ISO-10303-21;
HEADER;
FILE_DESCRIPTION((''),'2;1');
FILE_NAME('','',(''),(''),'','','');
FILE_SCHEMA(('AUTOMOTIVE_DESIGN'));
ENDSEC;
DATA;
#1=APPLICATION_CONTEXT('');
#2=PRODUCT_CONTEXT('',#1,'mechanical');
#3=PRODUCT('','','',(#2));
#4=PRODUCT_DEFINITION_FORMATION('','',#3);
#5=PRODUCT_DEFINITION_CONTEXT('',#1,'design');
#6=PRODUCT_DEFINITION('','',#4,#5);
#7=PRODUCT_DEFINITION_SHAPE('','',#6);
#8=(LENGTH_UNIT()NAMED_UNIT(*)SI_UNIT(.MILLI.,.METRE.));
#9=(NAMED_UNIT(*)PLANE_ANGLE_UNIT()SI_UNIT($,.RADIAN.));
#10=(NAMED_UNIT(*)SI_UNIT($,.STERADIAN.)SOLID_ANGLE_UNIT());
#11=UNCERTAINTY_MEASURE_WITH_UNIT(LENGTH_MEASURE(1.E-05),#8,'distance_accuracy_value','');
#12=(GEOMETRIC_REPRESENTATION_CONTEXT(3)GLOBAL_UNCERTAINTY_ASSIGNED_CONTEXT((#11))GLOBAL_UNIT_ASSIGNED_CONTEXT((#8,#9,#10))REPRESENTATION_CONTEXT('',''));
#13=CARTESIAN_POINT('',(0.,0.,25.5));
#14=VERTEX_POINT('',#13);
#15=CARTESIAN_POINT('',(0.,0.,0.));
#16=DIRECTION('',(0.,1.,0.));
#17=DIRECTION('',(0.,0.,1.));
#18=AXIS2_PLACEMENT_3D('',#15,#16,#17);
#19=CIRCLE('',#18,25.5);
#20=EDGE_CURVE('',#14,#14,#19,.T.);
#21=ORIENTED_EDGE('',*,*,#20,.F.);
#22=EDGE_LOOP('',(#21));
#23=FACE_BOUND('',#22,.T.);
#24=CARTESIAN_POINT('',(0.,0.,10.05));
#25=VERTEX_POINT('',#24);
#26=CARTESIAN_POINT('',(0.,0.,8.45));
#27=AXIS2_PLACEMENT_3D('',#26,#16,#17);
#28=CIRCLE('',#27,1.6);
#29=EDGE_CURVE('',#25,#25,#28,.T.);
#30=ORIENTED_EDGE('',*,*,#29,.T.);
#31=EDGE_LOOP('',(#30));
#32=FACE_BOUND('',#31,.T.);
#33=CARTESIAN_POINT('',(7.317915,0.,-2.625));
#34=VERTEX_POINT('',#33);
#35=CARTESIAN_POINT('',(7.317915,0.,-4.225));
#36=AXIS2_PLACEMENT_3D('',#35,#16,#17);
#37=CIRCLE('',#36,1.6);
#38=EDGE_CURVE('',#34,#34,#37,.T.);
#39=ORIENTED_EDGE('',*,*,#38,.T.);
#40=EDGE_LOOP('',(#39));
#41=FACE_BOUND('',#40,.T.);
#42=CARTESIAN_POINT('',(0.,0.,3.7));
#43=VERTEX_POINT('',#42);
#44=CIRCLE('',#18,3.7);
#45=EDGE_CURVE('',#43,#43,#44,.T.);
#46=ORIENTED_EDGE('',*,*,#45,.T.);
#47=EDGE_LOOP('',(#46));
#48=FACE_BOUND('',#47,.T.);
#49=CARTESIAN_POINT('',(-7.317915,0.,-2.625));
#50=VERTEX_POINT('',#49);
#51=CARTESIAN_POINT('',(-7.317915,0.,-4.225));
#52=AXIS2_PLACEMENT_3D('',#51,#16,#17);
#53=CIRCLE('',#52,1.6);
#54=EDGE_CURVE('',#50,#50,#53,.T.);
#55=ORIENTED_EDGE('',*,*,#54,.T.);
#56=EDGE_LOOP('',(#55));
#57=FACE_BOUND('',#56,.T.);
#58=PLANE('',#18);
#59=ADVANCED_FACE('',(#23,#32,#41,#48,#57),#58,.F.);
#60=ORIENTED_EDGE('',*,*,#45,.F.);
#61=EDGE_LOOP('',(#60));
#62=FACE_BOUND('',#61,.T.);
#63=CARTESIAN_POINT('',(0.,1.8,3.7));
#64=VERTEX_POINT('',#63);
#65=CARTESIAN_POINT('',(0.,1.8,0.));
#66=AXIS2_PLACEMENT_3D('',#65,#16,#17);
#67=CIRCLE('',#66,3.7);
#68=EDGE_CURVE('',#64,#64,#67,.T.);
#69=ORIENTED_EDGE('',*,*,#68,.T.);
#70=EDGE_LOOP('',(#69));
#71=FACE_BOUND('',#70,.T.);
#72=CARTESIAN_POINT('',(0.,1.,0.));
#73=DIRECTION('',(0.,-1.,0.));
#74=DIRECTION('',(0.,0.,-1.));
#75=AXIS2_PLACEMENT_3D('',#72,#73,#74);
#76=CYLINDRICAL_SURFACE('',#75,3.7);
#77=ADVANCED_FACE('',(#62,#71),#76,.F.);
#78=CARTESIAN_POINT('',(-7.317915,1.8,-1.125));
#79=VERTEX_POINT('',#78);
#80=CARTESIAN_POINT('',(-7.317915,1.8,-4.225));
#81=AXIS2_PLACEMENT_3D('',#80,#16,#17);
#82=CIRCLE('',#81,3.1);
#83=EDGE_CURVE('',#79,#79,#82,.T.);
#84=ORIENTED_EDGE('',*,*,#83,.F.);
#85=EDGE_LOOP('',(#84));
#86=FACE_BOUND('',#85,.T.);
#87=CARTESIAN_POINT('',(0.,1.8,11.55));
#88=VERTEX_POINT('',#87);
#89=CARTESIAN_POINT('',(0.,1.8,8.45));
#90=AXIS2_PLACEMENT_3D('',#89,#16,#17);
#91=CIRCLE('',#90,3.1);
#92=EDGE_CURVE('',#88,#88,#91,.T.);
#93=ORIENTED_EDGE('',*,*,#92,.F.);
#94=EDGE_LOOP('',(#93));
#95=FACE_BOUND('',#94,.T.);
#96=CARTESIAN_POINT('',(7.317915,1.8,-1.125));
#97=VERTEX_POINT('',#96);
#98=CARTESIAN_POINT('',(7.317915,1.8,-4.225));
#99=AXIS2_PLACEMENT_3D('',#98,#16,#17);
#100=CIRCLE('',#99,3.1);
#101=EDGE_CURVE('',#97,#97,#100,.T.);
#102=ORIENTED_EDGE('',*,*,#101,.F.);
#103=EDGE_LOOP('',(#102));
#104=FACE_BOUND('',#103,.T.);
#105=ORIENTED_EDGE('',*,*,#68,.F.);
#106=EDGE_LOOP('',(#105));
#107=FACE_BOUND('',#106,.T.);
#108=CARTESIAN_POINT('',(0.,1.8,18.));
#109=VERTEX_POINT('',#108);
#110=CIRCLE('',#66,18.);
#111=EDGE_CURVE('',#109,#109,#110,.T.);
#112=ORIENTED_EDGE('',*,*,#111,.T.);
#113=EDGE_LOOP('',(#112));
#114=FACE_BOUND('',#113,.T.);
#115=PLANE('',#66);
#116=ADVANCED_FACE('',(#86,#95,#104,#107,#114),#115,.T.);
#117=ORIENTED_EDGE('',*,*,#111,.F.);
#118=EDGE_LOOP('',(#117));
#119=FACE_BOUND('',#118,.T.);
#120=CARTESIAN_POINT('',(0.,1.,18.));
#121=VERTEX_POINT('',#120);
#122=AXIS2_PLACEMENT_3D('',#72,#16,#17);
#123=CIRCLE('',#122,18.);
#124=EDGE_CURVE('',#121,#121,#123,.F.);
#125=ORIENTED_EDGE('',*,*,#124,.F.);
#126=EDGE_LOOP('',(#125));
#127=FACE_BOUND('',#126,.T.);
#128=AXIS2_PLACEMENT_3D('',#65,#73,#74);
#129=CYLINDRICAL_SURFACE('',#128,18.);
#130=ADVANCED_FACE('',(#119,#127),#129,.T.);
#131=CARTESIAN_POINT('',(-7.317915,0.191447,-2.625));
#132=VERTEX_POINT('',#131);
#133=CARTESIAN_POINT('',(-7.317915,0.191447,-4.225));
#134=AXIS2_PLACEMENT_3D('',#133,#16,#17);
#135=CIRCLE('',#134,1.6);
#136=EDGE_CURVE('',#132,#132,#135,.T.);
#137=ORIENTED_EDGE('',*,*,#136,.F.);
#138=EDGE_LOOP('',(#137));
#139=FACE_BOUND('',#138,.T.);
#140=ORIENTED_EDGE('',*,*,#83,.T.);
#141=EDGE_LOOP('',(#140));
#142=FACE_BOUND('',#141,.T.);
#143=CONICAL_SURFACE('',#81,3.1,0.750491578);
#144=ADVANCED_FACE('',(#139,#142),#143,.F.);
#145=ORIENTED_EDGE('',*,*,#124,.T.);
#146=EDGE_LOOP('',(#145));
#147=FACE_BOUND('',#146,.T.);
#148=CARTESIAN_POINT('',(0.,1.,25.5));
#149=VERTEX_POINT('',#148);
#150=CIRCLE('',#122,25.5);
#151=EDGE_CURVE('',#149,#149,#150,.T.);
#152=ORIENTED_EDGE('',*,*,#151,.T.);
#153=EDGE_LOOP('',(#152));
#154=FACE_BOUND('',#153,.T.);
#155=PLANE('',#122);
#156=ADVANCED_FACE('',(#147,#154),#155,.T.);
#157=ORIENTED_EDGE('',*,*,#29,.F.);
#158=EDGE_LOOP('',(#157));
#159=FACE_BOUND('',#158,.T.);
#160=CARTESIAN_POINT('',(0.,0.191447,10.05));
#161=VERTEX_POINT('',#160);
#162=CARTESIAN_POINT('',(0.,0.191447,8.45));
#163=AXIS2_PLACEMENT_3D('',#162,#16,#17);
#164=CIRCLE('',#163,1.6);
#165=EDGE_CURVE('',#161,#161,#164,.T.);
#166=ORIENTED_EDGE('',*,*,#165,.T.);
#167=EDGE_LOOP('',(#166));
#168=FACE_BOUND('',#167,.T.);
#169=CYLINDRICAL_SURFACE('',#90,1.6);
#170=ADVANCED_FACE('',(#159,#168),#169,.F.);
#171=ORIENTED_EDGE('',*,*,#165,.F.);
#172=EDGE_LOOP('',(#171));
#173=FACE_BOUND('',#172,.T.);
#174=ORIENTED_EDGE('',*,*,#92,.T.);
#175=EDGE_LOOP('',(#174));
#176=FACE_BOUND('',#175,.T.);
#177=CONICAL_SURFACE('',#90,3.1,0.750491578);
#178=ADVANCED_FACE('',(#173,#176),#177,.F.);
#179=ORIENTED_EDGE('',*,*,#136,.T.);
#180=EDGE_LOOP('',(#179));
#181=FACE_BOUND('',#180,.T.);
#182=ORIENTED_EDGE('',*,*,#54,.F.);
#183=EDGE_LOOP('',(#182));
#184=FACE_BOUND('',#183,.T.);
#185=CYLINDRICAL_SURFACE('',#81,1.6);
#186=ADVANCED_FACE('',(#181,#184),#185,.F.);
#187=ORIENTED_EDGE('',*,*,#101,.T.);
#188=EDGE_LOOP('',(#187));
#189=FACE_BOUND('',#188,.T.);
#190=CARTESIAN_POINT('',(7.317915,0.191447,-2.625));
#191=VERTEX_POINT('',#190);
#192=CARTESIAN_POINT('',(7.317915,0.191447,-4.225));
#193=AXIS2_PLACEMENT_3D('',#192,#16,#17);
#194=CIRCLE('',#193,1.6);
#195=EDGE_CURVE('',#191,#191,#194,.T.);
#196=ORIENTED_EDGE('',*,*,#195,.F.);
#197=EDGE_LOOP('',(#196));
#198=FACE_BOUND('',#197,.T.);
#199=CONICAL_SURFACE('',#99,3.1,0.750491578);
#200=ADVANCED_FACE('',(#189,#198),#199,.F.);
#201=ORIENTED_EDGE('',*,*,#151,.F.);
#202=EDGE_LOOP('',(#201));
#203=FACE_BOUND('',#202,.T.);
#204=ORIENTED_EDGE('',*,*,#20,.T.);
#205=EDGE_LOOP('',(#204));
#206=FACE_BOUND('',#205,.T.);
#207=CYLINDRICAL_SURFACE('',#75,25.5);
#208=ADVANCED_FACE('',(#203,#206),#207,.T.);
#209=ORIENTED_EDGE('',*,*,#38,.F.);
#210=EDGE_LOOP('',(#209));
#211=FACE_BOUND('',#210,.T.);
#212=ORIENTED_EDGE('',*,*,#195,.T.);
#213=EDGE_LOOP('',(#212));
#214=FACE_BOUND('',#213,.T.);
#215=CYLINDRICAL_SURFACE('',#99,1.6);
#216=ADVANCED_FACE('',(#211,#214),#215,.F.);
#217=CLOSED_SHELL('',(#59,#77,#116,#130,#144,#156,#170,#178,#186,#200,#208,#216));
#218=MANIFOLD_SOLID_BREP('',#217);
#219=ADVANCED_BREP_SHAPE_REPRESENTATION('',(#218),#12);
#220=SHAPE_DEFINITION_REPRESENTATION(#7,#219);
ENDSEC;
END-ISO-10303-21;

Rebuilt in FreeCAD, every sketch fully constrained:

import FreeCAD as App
import Part
import Sketcher

V = App.Vector

doc = App.newDocument("Part")
body = doc.addObject("PartDesign::Body", "Body")

# Sketch on XZ plane
sketch1 = doc.addObject("Sketcher::SketchObject", "Sketch")
body.addObject(sketch1)
sketch1.AttachmentSupport = (doc.XZ_Plane, [""])
sketch1.MapMode = "FlatFace"
sketch1.addGeometry([
    Part.Circle(V(0, 0, 0), V(0, 0, 1), 25.5),
    Part.Circle(V(0, 0, 0), V(0, 0, 1), 3.7),
], False)
sketch1.addConstraint([
    Sketcher.Constraint("Coincident", 0, 3, -1, 1),
    Sketcher.Constraint("Coincident", 1, 3, -1, 1),
    Sketcher.Constraint("Diameter", 0, 51.0),
    Sketcher.Constraint("Diameter", 1, 7.4),
])
pad1 = doc.addObject("PartDesign::Pad", "Pad")
body.addObject(pad1)
pad1.Profile = sketch1
pad1.Length = 1
pad1.Reversed = True

# Sketch on XZ plane
sketch2 = doc.addObject("Sketcher::SketchObject", "Sketch001")
body.addObject(sketch2)
sketch2.AttachmentSupport = (doc.XZ_Plane, [""])
sketch2.MapMode = "FlatFace"
sketch2.addGeometry([
    Part.Circle(V(0, 0, 0), V(0, 0, 1), 18),
    Part.Circle(V(0, 0, 0), V(0, 0, 1), 3.7),
], False)
sketch2.addConstraint([
    Sketcher.Constraint("Coincident", 0, 3, -1, 1),
    Sketcher.Constraint("Coincident", 1, 3, -1, 1),
    Sketcher.Constraint("Diameter", 0, 36.0),
    Sketcher.Constraint("Diameter", 1, 7.4),
])
pad2 = doc.addObject("PartDesign::Pad", "Pad001")
body.addObject(pad2)
pad2.Profile = sketch2
pad2.Length = 1.8
pad2.Reversed = True

# Sketch on XZ plane
sketch3 = doc.addObject("Sketcher::SketchObject", "Sketch002")
body.addObject(sketch3)
sketch3.AttachmentSupport = (doc.XZ_Plane, [""])
sketch3.MapMode = "FlatFace"
sketch3.AttachmentOffset = App.Placement(V(0, 0, -1.8), App.Rotation())
sketch3.addGeometry([
    Part.Circle(V(7.3, -4.2, 0), V(0, 0, 1), 1.6),
    Part.Circle(V(-7.3, -4.2, 0), V(0, 0, 1), 1.6),
    Part.Circle(V(0, 8.4, 0), V(0, 0, 1), 1.6),
], False)
sketch3.addConstraint([
    Sketcher.Constraint("Equal", 0, 1),
    Sketcher.Constraint("Equal", 1, 2),
    Sketcher.Constraint("Symmetric", 0, 3, 1, 3, -2),
    Sketcher.Constraint("PointOnObject", 2, 3, -2),
    Sketcher.Constraint("Diameter", 0, 3.2),
    Sketcher.Constraint("DistanceY", -1, 1, 2, 3, 8.45),
    Sketcher.Constraint("DistanceY", 0, 3, -1, 1, 4.225),
    Sketcher.Constraint("DistanceX", 1, 3, 0, 3, 14.635829),
])
doc.recompute()
hole = doc.addObject("PartDesign::Hole", "Hole")
body.addObject(hole)
hole.Profile = sketch3
hole.ThreadType = "None"
hole.Diameter = 3.2
hole.DepthType = "Dimension"
hole.Depth = 7.857099
hole.DrillPoint = "Flat"
hole.HoleCutType = "Countersink"
hole.HoleCutDiameter = 6.2
hole.HoleCutCountersinkAngle = 86
hole.Reversed = True

doc.recompute()
